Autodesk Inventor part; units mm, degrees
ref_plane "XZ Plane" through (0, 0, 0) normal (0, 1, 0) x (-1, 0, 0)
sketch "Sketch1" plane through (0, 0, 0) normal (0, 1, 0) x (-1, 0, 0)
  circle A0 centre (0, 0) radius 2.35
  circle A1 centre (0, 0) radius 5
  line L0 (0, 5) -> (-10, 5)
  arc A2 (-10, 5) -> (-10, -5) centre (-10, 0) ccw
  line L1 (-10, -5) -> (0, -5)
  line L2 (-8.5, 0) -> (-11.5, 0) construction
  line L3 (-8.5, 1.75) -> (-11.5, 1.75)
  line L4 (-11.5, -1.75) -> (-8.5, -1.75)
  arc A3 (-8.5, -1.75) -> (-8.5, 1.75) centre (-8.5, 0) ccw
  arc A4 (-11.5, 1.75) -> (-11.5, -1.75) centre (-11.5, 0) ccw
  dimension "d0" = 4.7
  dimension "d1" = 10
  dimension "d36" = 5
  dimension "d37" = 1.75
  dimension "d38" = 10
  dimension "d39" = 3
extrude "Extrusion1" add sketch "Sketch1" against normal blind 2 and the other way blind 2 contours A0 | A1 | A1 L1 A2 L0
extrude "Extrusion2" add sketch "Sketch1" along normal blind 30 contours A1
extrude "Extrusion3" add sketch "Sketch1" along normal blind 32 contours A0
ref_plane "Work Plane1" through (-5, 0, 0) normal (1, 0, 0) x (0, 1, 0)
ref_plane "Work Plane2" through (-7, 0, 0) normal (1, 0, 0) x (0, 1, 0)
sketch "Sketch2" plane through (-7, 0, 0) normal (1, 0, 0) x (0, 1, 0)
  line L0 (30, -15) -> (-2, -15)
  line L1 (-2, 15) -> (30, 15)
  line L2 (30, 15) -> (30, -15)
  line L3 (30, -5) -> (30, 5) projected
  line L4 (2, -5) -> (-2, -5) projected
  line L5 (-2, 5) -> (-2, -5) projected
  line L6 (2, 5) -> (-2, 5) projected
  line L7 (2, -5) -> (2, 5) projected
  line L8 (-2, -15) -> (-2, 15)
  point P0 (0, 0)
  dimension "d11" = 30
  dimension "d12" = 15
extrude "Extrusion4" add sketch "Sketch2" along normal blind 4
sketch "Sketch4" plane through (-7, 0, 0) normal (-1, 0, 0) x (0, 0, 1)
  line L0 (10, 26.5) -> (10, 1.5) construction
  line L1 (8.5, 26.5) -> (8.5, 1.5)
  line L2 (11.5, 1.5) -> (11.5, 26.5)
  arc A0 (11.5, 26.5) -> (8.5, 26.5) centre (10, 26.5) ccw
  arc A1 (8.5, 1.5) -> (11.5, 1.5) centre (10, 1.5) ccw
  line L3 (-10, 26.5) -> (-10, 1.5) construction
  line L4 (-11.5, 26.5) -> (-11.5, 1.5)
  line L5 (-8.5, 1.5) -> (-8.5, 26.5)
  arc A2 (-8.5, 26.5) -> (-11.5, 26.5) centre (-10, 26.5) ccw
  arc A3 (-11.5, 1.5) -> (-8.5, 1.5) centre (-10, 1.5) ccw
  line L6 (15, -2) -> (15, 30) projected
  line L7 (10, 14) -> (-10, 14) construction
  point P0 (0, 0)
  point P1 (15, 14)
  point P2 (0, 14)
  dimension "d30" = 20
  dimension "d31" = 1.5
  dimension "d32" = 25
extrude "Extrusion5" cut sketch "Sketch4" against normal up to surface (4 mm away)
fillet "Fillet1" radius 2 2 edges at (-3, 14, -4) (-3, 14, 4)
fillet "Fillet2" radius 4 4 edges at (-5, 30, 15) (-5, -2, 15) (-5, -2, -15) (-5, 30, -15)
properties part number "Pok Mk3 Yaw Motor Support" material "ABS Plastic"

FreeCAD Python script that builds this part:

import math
import FreeCAD as App
import Part
import Sketcher
Q = App.Units.Quantity


def edges_at(feature, points):
    """Names of the edges that pass closest to the given points."""
    edges = feature.Shape.Edges
    near = lambda p: min(range(len(edges)), key=lambda i: edges[i].distToShape(Part.Vertex(*p))[0])
    return sorted({f"Edge{near(p) + 1}" for p in points})

doc = App.newDocument("Part")
body = doc.addObject("PartDesign::Body", "Body")

sketch1 = doc.addObject("Sketcher::SketchObject", "Sketch")
body.addObject(sketch1)
sketch1.AttachmentSupport = (doc.XZ_Plane, [""])
sketch1.MapMode = "FlatFace"
sketch1.addGeometry(Part.ArcOfCircle(Part.Circle(App.Vector(0, 0, 0), App.Vector(0, 0, 1), 5), math.radians(90), math.radians(270)), False)
sketch1.addGeometry(Part.LineSegment(App.Vector(0, 5, 0), App.Vector(10, 5, 0)), False)
sketch1.addGeometry(Part.ArcOfCircle(Part.Circle(App.Vector(10, 0, 0), App.Vector(0, 0, 1), 5), math.radians(-90), math.radians(90)), False)
sketch1.addGeometry(Part.LineSegment(App.Vector(10, -5, 0), App.Vector(0, -5, 0)), False)
sketch1.addGeometry(Part.ArcOfCircle(Part.Circle(App.Vector(8.5, 0, 0), App.Vector(0, 0, 1), 1.8), math.radians(90), math.radians(270)), False)
sketch1.addGeometry(Part.LineSegment(App.Vector(8.5, -1.8, 0), App.Vector(11.5, -1.8, 0)), False)
sketch1.addGeometry(Part.ArcOfCircle(Part.Circle(App.Vector(11.5, 0, 0), App.Vector(0, 0, 1), 1.8), math.radians(-90), math.radians(90)), False)
sketch1.addGeometry(Part.LineSegment(App.Vector(11.5, 1.8, 0), App.Vector(8.5, 1.8, 0)), False)
sketch1.addConstraint(Sketcher.Constraint("Tangent", 0, 1, 1, 1))
sketch1.addConstraint(Sketcher.Constraint("Tangent", 1, 2, 2, 2))
sketch1.addConstraint(Sketcher.Constraint("Tangent", 2, 1, 3, 1))
sketch1.addConstraint(Sketcher.Constraint("Tangent", 3, 2, 0, 2))
sketch1.addConstraint(Sketcher.Constraint("Tangent", 4, 2, 5, 1))
sketch1.addConstraint(Sketcher.Constraint("Tangent", 5, 2, 6, 1))
sketch1.addConstraint(Sketcher.Constraint("Tangent", 6, 2, 7, 1))
sketch1.addConstraint(Sketcher.Constraint("Tangent", 7, 2, 4, 1))
sketch1.addConstraint(Sketcher.Constraint("Horizontal", 1))
sketch1.addConstraint(Sketcher.Constraint("Horizontal", 3))
sketch1.addConstraint(Sketcher.Constraint("Horizontal", 5))
sketch1.addConstraint(Sketcher.Constraint("Horizontal", 7))
sketch1.addConstraint(Sketcher.Constraint("Coincident", 0, 3, -1, 1))
sketch1.addConstraint(Sketcher.Constraint("PointOnObject", 4, 3, -1))
sketch1.addConstraint(Sketcher.Constraint("Radius", 0, Q("5 mm")))
sketch1.addConstraint(Sketcher.Constraint("DistanceX", 1, 1, 1, 2, Q("10 mm")))
sketch1.addConstraint(Sketcher.Constraint("DistanceX", 5, 1, 5, 2, Q("3 mm")))
sketch1.addConstraint(Sketcher.Constraint("Radius", 4, Q("1.75 mm")))
sketch1.addConstraint(Sketcher.Constraint("DistanceX", -1, 1, 4, 3, Q("8.5 mm")))
pad1 = doc.addObject("PartDesign::Pad", "Pad")
body.addObject(pad1)
pad1.Profile = sketch1
pad1.Type = "TwoLengths"
pad1.Length = 2
pad1.Length2 = 2

sketch2 = doc.addObject("Sketcher::SketchObject", "Sketch001")
body.addObject(sketch2)
sketch2.AttachmentSupport = (doc.XZ_Plane, [""])
sketch2.MapMode = "FlatFace"
sketch2.addGeometry(Part.Circle(App.Vector(0, 0, 0), App.Vector(0, 0, 1), 5), False)
sketch2.addGeometry(Part.Circle(App.Vector(0, 0, 0), App.Vector(0, 0, 1), 2.4), False)
sketch2.addConstraint(Sketcher.Constraint("Coincident", 0, 3, -1, 1))
sketch2.addConstraint(Sketcher.Constraint("Coincident", 1, 3, -1, 1))
sketch2.addConstraint(Sketcher.Constraint("Diameter", 0, Q("10 mm")))
sketch2.addConstraint(Sketcher.Constraint("Diameter", 1, Q("4.7 mm")))
pad2 = doc.addObject("PartDesign::Pad", "Pad001")
body.addObject(pad2)
pad2.Profile = sketch2
pad2.Length = 30
pad2.Reversed = True

sketch3 = doc.addObject("Sketcher::SketchObject", "Sketch002")
body.addObject(sketch3)
sketch3.AttachmentSupport = (doc.XZ_Plane, [""])
sketch3.MapMode = "FlatFace"
sketch3.addGeometry(Part.Circle(App.Vector(0, 0, 0), App.Vector(0, 0, 1), 2.4), False)
sketch3.addConstraint(Sketcher.Constraint("Coincident", 0, 3, -1, 1))
sketch3.addConstraint(Sketcher.Constraint("Diameter", 0, Q("4.7 mm")))
pad3 = doc.addObject("PartDesign::Pad", "Pad002")
body.addObject(pad3)
pad3.Profile = sketch3
pad3.Length = 32
pad3.Reversed = True

sketch4 = doc.addObject("Sketcher::SketchObject", "Sketch003")
body.addObject(sketch4)
sketch4.AttachmentSupport = (doc.YZ_Plane, [""])
sketch4.MapMode = "FlatFace"
sketch4.AttachmentOffset = App.Placement(App.Vector(0, 0, -7), App.Rotation())
sketch4.addGeometry(Part.LineSegment(App.Vector(-2, -15, 0), App.Vector(30, -15, 0)), False)
sketch4.addGeometry(Part.LineSegment(App.Vector(30, -15, 0), App.Vector(30, 15, 0)), False)
sketch4.addGeometry(Part.LineSegment(App.Vector(30, 15, 0), App.Vector(-2, 15, 0)), False)
sketch4.addGeometry(Part.LineSegment(App.Vector(-2, 15, 0), App.Vector(-2, -15, 0)), False)
sketch4.addConstraint(Sketcher.Constraint("Coincident", 0, 2, 1, 1))
sketch4.addConstraint(Sketcher.Constraint("Coincident", 1, 2, 2, 1))
sketch4.addConstraint(Sketcher.Constraint("Coincident", 2, 2, 3, 1))
sketch4.addConstraint(Sketcher.Constraint("Coincident", 3, 2, 0, 1))
sketch4.addConstraint(Sketcher.Constraint("Horizontal", 0))
sketch4.addConstraint(Sketcher.Constraint("Vertical", 1))
sketch4.addConstraint(Sketcher.Constraint("Horizontal", 2))
sketch4.addConstraint(Sketcher.Constraint("Vertical", 3))
sketch4.addConstraint(Sketcher.Constraint("DistanceY", 1, 1, 1, 2, Q("30 mm")))
sketch4.addConstraint(Sketcher.Constraint("DistanceX", -1, 1, 0, 2, Q("30 mm")))
sketch4.addConstraint(Sketcher.Constraint("DistanceY", 0, 2, -1, 1, Q("15 mm")))
sketch4.addConstraint(Sketcher.Constraint("DistanceX", 0, 1, 0, 2, Q("32 mm")))
pad4 = doc.addObject("PartDesign::Pad", "Pad003")
body.addObject(pad4)
pad4.Profile = sketch4
pad4.Length = 4

sketch5 = doc.addObject("Sketcher::SketchObject", "Sketch004")
body.addObject(sketch5)
sketch5.AttachmentSupport = (doc.YZ_Plane, [""])
sketch5.MapMode = "FlatFace"
sketch5.AttachmentOffset = App.Placement(App.Vector(0, 0, -7), App.Rotation())
sketch5.addGeometry(Part.ArcOfCircle(Part.Circle(App.Vector(26.5, 10, 0), App.Vector(0, 0, 1), 1.5), math.radians(-90), math.radians(90)), False)
sketch5.addGeometry(Part.LineSegment(App.Vector(26.5, 8.5, 0), App.Vector(1.5, 8.5, 0)), False)
sketch5.addGeometry(Part.ArcOfCircle(Part.Circle(App.Vector(1.5, 10, 0), App.Vector(0, 0, 1), 1.5), math.radians(90), math.radians(270)), False)
sketch5.addGeometry(Part.LineSegment(App.Vector(1.5, 11.5, 0), App.Vector(26.5, 11.5, 0)), False)
sketch5.addGeometry(Part.ArcOfCircle(Part.Circle(App.Vector(26.5, -10, 0), App.Vector(0, 0, 1), 1.5), math.radians(-90), math.radians(90)), False)
sketch5.addGeometry(Part.LineSegment(App.Vector(26.5, -11.5, 0), App.Vector(1.5, -11.5, 0)), False)
sketch5.addGeometry(Part.ArcOfCircle(Part.Circle(App.Vector(1.5, -10, 0), App.Vector(0, 0, 1), 1.5), math.radians(90), math.radians(270)), False)
sketch5.addGeometry(Part.LineSegment(App.Vector(1.5, -8.5, 0), App.Vector(26.5, -8.5, 0)), False)
sketch5.addConstraint(Sketcher.Constraint("Tangent", 0, 1, 1, 1))
sketch5.addConstraint(Sketcher.Constraint("Tangent", 1, 2, 2, 2))
sketch5.addConstraint(Sketcher.Constraint("Tangent", 2, 1, 3, 1))
sketch5.addConstraint(Sketcher.Constraint("Tangent", 3, 2, 0, 2))
sketch5.addConstraint(Sketcher.Constraint("Tangent", 4, 1, 5, 1))
sketch5.addConstraint(Sketcher.Constraint("Tangent", 5, 2, 6, 2))
sketch5.addConstraint(Sketcher.Constraint("Tangent", 6, 1, 7, 1))
sketch5.addConstraint(Sketcher.Constraint("Tangent", 7, 2, 4, 2))
sketch5.addConstraint(Sketcher.Constraint("Horizontal", 1))
sketch5.addConstraint(Sketcher.Constraint("Horizontal", 3))
sketch5.addConstraint(Sketcher.Constraint("Horizontal", 5))
sketch5.addConstraint(Sketcher.Constraint("Horizontal", 7))
sketch5.addConstraint(Sketcher.Constraint("Equal", 2, 4))
sketch5.addConstraint(Sketcher.Constraint("Symmetric", 0, 3, 4, 3, -1))
sketch5.addConstraint(Sketcher.Constraint("Vertical", 2, 3, 6, 3))
sketch5.addConstraint(Sketcher.Constraint("Radius", 0, Q("1.5 mm")))
sketch5.addConstraint(Sketcher.Constraint("DistanceX", 1, 2, 1, 1, Q("25 mm")))
sketch5.addConstraint(Sketcher.Constraint("DistanceY", 4, 3, 0, 3, Q("20 mm")))
sketch5.addConstraint(Sketcher.Constraint("DistanceX", -1, 1, 2, 3, Q("1.5 mm")))
pocket1 = doc.addObject("PartDesign::Pocket", "Pocket")
body.addObject(pocket1)
pocket1.Profile = sketch5
pocket1.Length = 4
pocket1.Reversed = True
doc.recompute()

fillet = doc.addObject("PartDesign::Fillet", "Fillet")
body.addObject(fillet)
fillet.Base = (pocket1, edges_at(pocket1, [(-3, 14, -4), (-3, 14, 4)]))
fillet.Radius = 2
doc.recompute()

fillet2 = doc.addObject("PartDesign::Fillet", "Fillet001")
body.addObject(fillet2)
fillet2.Base = (fillet, edges_at(fillet, [
    (-5, 30, 15),
    (-5, -2, 15),
    (-5, -2, -15),
    (-5, 30, -15),
]))
fillet2.Radius = 4

doc.recompute()
